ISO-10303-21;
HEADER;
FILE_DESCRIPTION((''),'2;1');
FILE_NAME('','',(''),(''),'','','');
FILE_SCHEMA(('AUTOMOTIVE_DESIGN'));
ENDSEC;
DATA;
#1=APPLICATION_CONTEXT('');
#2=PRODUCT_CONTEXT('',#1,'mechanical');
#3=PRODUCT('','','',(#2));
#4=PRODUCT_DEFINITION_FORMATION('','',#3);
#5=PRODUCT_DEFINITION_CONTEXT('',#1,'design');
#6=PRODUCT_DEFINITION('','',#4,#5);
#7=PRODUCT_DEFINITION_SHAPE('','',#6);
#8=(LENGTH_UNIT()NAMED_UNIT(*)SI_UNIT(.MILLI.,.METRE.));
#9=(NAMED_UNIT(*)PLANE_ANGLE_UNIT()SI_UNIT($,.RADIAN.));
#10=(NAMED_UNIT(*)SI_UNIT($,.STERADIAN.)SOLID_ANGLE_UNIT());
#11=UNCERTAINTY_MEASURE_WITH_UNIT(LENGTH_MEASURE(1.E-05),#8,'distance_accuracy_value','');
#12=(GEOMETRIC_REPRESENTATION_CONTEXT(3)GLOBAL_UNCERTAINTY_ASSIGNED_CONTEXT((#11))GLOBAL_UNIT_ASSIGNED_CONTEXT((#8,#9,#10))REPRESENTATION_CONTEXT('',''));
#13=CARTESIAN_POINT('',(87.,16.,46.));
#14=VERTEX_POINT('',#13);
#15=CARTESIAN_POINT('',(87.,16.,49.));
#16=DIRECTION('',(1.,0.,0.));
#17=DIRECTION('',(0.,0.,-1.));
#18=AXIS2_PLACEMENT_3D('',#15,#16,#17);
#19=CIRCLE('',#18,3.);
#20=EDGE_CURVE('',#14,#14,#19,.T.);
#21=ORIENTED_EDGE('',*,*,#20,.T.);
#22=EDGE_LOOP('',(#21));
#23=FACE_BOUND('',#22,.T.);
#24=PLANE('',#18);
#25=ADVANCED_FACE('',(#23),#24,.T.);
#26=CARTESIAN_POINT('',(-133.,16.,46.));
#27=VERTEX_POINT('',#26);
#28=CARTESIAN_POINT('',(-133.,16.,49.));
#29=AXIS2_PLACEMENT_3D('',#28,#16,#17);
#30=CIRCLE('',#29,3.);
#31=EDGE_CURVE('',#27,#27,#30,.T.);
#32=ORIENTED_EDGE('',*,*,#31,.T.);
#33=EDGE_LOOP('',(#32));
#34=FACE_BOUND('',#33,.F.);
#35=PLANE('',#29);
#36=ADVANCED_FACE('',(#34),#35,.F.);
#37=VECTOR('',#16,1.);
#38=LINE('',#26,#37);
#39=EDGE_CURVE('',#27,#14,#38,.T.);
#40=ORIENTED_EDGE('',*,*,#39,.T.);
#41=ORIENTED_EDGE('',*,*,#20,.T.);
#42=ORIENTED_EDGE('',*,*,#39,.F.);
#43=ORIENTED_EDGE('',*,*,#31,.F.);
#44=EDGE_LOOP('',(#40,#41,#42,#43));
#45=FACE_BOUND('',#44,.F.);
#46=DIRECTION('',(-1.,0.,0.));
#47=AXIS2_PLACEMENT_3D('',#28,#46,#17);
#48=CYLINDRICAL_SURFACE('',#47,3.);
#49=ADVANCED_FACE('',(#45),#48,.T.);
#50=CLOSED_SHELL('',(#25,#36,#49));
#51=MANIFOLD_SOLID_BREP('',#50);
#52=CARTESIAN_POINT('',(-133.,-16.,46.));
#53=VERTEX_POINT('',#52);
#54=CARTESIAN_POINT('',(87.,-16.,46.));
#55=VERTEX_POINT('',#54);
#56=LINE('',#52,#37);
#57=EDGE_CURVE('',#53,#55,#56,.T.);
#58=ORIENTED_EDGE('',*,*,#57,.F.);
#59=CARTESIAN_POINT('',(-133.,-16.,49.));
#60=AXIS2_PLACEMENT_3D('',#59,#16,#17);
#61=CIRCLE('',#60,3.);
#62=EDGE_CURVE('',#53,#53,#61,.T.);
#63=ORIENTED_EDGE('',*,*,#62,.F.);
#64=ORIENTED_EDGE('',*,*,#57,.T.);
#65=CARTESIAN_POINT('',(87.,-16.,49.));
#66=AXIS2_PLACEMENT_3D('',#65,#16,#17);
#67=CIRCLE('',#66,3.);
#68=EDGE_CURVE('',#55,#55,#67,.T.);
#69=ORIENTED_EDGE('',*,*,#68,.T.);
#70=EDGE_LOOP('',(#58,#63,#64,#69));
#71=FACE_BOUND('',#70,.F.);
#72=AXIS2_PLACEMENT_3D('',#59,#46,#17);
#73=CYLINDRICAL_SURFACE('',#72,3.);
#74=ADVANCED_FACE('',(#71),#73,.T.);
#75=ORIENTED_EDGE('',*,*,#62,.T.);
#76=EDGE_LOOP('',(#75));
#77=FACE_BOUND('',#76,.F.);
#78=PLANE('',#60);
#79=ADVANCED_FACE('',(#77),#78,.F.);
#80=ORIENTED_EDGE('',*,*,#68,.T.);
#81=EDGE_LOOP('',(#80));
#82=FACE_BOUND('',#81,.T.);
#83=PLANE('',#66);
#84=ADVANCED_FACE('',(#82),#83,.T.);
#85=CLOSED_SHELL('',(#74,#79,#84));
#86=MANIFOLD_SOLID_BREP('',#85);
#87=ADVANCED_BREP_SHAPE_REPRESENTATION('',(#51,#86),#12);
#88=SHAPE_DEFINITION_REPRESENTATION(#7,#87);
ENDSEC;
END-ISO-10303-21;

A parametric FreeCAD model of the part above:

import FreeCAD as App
import Part
import Sketcher
Q = App.Units.Quantity

doc = App.newDocument("Part")
params = doc.addObject("Spreadsheet::Sheet", "Params")
for row, (alias, value) in enumerate([
    ("sketch1_diameter", "6 mm"),
    ("pad1_length", "220 mm"),
    ("sketch2_diameter", "6 mm"),
    ("pad2_length", "220 mm"),
], start=1):
    params.set(f"A{row}", alias)
    params.set(f"B{row}", "=" + value)
    params.setAlias(f"B{row}", alias)

body = doc.addObject("PartDesign::Body", "Body")

sketch1 = body.newObject("Sketcher::SketchObject", "Sketch")
sketch1.AttachmentSupport = (doc.getObject("YZ_Plane"), [""])
sketch1.MapMode = "FlatFace"
sketch1.AttachmentOffset = App.Placement(App.Vector(0, 0, -133), App.Rotation())
sketch1.addGeometry(Part.Circle(App.Vector(16, 49, 0), App.Vector(0, 0, 1), 3), False)
sketch1.addConstraint(Sketcher.Constraint("Diameter", 0, Q("6 mm")))
sketch1.addConstraint(Sketcher.Constraint("DistanceX", -1, 1, 0, 3, Q("16 mm")))
sketch1.addConstraint(Sketcher.Constraint("DistanceY", -1, 1, 0, 3, Q("49 mm")))
sketch1.setExpression("Constraints[0]", "Params.sketch1_diameter")
pad1 = body.newObject("PartDesign::Pad", "Pad")
pad1.Profile = sketch1
pad1.setExpression("Length", "Params.pad1_length")
body2 = doc.addObject("PartDesign::Body", "Body001")
body2.AllowCompound = True

sketch2 = body2.newObject("Sketcher::SketchObject", "Sketch001")
sketch2.AttachmentSupport = (doc.getObject("YZ_Plane001"), [""])
sketch2.MapMode = "FlatFace"
sketch2.AttachmentOffset = App.Placement(App.Vector(0, 0, -133), App.Rotation())
sketch2.addGeometry(Part.Circle(App.Vector(-16, 49, 0), App.Vector(0, 0, 1), 3), False)
sketch2.addConstraint(Sketcher.Constraint("Diameter", 0, Q("6 mm")))
sketch2.addConstraint(Sketcher.Constraint("DistanceX", 0, 3, -1, 1, Q("16 mm")))
sketch2.addConstraint(Sketcher.Constraint("DistanceY", -1, 1, 0, 3, Q("49 mm")))
sketch2.setExpression("Constraints[0]", "Params.sketch2_diameter")
pad2 = body2.newObject("PartDesign::Pad", "Pad001")
pad2.Profile = sketch2
pad2.setExpression("Length", "Params.pad2_length")
doc.recompute()

boolean = body2.newObject("PartDesign::Boolean", "Boolean")
boolean.Type = "Fuse"
boolean.addObjects([body])

doc.recompute()
